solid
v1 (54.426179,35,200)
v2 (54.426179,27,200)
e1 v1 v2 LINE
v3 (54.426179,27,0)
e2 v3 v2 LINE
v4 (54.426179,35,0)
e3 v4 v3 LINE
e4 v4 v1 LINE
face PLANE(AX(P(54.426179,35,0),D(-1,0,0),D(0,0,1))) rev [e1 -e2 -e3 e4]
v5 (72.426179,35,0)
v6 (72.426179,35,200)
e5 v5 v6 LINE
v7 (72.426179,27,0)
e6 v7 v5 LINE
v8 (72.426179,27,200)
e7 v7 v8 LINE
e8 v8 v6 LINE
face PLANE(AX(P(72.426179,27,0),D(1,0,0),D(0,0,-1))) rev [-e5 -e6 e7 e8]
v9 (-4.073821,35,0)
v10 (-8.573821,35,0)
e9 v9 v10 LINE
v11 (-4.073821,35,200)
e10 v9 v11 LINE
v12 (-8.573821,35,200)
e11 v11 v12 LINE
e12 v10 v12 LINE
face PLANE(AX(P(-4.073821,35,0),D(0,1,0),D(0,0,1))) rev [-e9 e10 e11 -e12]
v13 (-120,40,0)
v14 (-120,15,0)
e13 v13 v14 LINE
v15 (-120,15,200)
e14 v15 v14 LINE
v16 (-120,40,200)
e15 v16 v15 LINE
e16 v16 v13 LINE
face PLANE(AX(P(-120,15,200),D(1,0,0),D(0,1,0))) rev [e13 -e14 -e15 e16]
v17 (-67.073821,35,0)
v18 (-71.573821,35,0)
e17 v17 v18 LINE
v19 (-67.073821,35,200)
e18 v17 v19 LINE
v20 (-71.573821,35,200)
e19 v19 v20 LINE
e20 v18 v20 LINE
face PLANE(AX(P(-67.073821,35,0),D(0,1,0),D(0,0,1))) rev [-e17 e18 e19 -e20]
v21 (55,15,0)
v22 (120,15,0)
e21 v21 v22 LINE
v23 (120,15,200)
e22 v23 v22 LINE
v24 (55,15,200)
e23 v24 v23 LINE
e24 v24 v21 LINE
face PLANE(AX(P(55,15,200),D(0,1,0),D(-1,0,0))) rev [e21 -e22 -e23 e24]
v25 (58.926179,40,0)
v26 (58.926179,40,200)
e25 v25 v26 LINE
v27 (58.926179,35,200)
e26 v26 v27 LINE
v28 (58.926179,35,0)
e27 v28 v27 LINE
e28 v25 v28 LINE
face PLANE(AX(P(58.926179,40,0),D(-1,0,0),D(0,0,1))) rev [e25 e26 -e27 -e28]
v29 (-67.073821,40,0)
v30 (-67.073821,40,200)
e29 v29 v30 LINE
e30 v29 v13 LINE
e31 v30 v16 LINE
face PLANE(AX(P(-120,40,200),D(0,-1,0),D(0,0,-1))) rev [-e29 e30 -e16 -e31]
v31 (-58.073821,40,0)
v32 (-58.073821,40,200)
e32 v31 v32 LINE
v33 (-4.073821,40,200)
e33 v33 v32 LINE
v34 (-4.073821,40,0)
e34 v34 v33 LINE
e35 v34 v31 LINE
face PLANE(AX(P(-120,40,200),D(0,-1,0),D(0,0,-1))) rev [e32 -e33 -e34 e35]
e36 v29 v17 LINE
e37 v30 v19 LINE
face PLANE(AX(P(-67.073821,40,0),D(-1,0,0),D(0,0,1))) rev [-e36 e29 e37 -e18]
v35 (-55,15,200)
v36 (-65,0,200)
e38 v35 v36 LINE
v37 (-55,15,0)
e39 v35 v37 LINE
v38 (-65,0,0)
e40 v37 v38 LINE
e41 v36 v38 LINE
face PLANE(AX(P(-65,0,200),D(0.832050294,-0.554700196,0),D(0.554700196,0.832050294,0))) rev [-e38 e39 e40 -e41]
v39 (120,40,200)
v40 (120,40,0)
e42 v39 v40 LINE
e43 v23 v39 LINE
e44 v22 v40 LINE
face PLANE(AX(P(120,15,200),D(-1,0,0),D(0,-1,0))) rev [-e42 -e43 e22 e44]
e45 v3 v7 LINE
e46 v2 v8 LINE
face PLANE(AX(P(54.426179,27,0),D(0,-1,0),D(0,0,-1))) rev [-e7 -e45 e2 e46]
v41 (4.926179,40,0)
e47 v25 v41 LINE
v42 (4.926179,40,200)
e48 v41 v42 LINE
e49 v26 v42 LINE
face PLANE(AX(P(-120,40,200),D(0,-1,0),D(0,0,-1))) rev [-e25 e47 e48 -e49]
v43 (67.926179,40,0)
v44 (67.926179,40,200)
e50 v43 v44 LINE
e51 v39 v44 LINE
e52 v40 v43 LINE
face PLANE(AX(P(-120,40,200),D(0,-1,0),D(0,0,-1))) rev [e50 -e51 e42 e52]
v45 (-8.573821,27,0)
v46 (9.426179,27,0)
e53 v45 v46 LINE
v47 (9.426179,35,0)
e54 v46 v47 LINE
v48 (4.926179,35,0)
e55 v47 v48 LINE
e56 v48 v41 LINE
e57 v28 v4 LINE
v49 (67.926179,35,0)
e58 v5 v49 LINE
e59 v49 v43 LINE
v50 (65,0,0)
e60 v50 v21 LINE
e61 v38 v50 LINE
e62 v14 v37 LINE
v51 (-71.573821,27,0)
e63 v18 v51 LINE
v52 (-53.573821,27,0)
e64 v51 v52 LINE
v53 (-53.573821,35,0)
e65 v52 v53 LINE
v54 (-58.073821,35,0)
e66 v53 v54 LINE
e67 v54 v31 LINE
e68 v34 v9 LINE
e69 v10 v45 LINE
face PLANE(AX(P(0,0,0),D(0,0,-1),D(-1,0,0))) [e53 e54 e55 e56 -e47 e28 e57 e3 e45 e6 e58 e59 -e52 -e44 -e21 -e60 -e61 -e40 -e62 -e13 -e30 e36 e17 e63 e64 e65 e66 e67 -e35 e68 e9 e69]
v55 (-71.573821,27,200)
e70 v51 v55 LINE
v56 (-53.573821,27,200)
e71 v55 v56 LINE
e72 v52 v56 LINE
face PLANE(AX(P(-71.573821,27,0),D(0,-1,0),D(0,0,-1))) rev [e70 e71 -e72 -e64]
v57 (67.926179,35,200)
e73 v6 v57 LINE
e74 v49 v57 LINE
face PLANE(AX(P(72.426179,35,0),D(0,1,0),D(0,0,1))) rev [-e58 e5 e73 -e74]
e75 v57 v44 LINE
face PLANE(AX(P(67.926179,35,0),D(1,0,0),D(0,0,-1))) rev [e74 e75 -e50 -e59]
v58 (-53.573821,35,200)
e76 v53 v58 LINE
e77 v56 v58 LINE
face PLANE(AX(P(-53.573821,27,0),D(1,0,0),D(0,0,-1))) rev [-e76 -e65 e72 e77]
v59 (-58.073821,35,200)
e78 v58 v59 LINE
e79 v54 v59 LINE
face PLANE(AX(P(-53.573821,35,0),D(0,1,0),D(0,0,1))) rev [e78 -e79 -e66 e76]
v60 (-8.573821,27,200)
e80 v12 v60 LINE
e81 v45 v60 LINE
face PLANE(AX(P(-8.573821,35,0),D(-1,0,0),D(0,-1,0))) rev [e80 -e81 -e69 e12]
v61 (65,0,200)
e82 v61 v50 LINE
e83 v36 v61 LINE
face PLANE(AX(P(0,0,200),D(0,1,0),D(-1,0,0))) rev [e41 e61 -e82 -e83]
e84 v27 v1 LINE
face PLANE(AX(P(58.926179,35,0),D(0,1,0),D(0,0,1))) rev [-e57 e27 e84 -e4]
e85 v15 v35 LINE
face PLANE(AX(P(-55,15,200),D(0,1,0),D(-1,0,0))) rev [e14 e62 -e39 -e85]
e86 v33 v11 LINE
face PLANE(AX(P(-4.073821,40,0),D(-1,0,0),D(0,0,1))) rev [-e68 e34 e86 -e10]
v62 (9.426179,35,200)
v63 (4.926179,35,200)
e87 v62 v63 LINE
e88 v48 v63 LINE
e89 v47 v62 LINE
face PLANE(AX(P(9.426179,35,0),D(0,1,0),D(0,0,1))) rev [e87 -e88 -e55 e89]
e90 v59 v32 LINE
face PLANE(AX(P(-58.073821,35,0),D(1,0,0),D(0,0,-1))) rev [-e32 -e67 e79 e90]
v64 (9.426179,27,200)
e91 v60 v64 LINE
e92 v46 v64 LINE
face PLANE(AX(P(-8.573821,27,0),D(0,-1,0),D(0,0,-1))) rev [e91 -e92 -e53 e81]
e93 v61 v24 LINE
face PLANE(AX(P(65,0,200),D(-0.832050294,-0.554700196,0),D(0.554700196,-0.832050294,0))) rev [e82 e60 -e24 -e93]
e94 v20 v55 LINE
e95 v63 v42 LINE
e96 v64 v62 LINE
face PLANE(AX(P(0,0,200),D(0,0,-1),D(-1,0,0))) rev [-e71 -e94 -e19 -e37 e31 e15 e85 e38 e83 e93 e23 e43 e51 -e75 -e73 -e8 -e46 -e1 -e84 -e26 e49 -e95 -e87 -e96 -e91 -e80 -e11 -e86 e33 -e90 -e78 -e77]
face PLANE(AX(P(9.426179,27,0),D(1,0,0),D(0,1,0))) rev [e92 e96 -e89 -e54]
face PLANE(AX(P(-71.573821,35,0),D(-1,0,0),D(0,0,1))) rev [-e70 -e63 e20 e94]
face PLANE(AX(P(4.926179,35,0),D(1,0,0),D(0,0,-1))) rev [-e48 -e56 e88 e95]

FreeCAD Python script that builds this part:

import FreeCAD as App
import Part
import Sketcher
Q = App.Units.Quantity


def add_polygon(sketch, points):
    """Adds a closed chain of lines whose ends are joined by coincident constraints."""
    first, n = sketch.GeometryCount, len(points)
    for a, b in zip(points, points[1:] + points[:1]):
        sketch.addGeometry(Part.LineSegment(App.Vector(*a, 0), App.Vector(*b, 0)), False)
    for i in range(n):
        sketch.addConstraint(Sketcher.Constraint("Coincident", first + i, 2, first + (i + 1) % n, 1))

doc = App.newDocument("Part")
body = doc.addObject("PartDesign::Body", "Body")

# Sketch on XY plane
sketch1 = doc.addObject("Sketcher::SketchObject", "Sketch")
body.addObject(sketch1)
sketch1.AttachmentSupport = (doc.XY_Plane, [""])
sketch1.MapMode = "FlatFace"
add_polygon(sketch1, [(65, 0), (55, 15), (120, 15), (120, 40), (-120, 40), (-120, 15), (-55, 15), (-65, 0)])  # lines 0-7
sketch1.addConstraint([
    Sketcher.Constraint("Horizontal", 1),
    Sketcher.Constraint("Vertical", 2),
    Sketcher.Constraint("Horizontal", 3),
    Sketcher.Constraint("Vertical", 4),
    Sketcher.Constraint("Horizontal", 5),
    Sketcher.Constraint("Horizontal", 7),
    Sketcher.Constraint("Symmetric", 6, 2, 7, 2, -1, 1),
    Sketcher.Constraint("Symmetric", 1, 2, 4, 2, -2),
    Sketcher.Constraint("Equal", 1, 5),
    Sketcher.Constraint("DistanceX", 1, 1, 1, 2, Q("65 mm")),
    Sketcher.Constraint("DistanceX", 3, 2, 3, 1, Q("240 mm")),
    Sketcher.Constraint("DistanceX", 7, 1, 7, 2, Q("130 mm")),
    Sketcher.Constraint("DistanceY", 2, 1, 2, 2, Q("25 mm")),
    Sketcher.Constraint("DistanceY", -1, 1, 0, 2, Q("15 mm")),
])
pad1 = doc.addObject("PartDesign::Pad", "Pad")
body.addObject(pad1)
pad1.Profile = sketch1
pad1.Length = 200

# Sketch on XY plane
sketch2 = doc.addObject("Sketcher::SketchObject", "Sketch001")
body.addObject(sketch2)
sketch2.AttachmentSupport = (doc.XY_Plane, [""])
sketch2.MapMode = "FlatFace"
sketch2.AttachmentOffset = App.Placement(App.Vector(0, 0, 200), App.Rotation())
add_polygon(sketch2, [(-8.6, 27), (9.4, 27), (9.4, 35), (4.9, 35), (4.9, 40), (-4.1, 40), (-4.1, 35), (-8.6, 35)])  # lines 0-7
add_polygon(sketch2, [(54.4, 27), (72.4, 27), (72.4, 35), (67.9, 35), (67.9, 40), (58.9, 40), (58.9, 35), (54.4, 35)])  # lines 8-15
add_polygon(sketch2, [(-71.6, 27), (-53.6, 27), (-53.6, 35), (-58.1, 35), (-58.1, 40), (-67.1, 40), (-67.1, 35), (-71.6, 35)])  # lines 16-23
sketch2.addConstraint([
    Sketcher.Constraint("Horizontal", 0),
    Sketcher.Constraint("Vertical", 1),
    Sketcher.Constraint("Horizontal", 2),
    Sketcher.Constraint("Vertical", 3),
    Sketcher.Constraint("Horizontal", 4),
    Sketcher.Constraint("Vertical", 5),
    Sketcher.Constraint("Horizontal", 6),
    Sketcher.Constraint("Vertical", 7),
    Sketcher.Constraint("Horizontal", 8),
    Sketcher.Constraint("Vertical", 9),
    Sketcher.Constraint("Horizontal", 10),
    Sketcher.Constraint("Vertical", 11),
    Sketcher.Constraint("Horizontal", 12),
    Sketcher.Constraint("Vertical", 13),
    Sketcher.Constraint("Horizontal", 14),
    Sketcher.Constraint("Vertical", 15),
    Sketcher.Constraint("Horizontal", 16),
    Sketcher.Constraint("Vertical", 17),
    Sketcher.Constraint("Horizontal", 18),
    Sketcher.Constraint("Vertical", 19),
    Sketcher.Constraint("Horizontal", 20),
    Sketcher.Constraint("Vertical", 21),
    Sketcher.Constraint("Horizontal", 22),
    Sketcher.Constraint("Vertical", 23),
    Sketcher.Constraint("Horizontal", 2, 2, 5, 2),
    Sketcher.Constraint("Horizontal", 7, 2, 8, 2),
    Sketcher.Constraint("Horizontal", 6, 2, 9, 2),
    Sketcher.Constraint("Horizontal", 4, 2, 11, 2),
    Sketcher.Constraint("Horizontal", 10, 2, 13, 2),
    Sketcher.Constraint("Horizontal", 15, 2, 16, 2),
    Sketcher.Constraint("Horizontal", 14, 2, 17, 2),
    Sketcher.Constraint("Horizontal", 12, 2, 19, 2),
    Sketcher.Constraint("Horizontal", 18, 2, 21, 2),
    Sketcher.Constraint("Equal", 2, 6),
    Sketcher.Constraint("Equal", 0, 8),
    Sketcher.Constraint("Equal", 6, 10),
    Sketcher.Constraint("Equal", 4, 12),
    Sketcher.Constraint("Equal", 8, 16),
    Sketcher.Constraint("Equal", 14, 18),
    Sketcher.Constraint("Equal", 12, 20),
    Sketcher.Constraint("DistanceX", 0, 1, 0, 2, Q("18 mm")),
    Sketcher.Constraint("DistanceX", 4, 2, 4, 1, Q("9 mm")),
    Sketcher.Constraint("DistanceY", 1, 1, 1, 2, Q("8 mm")),
    Sketcher.Constraint("DistanceY", 3, 1, 3, 2, Q("5 mm")),
    Sketcher.Constraint("DistanceY", -1, 1, 0, 2, Q("27 mm")),
    Sketcher.Constraint("DistanceX", 0, 2, 8, 2, Q("63 mm")),
    Sketcher.Constraint("DistanceX", 16, 2, 7, 2, Q("45 mm")),
    Sketcher.Constraint("DistanceX", -1, 1, 0, 2, Q("9.426179 mm")),
])
pocket1 = doc.addObject("PartDesign::Pocket", "Pocket")
body.addObject(pocket1)
pocket1.Profile = sketch2
pocket1.Type = "ThroughAll"

doc.recompute()
